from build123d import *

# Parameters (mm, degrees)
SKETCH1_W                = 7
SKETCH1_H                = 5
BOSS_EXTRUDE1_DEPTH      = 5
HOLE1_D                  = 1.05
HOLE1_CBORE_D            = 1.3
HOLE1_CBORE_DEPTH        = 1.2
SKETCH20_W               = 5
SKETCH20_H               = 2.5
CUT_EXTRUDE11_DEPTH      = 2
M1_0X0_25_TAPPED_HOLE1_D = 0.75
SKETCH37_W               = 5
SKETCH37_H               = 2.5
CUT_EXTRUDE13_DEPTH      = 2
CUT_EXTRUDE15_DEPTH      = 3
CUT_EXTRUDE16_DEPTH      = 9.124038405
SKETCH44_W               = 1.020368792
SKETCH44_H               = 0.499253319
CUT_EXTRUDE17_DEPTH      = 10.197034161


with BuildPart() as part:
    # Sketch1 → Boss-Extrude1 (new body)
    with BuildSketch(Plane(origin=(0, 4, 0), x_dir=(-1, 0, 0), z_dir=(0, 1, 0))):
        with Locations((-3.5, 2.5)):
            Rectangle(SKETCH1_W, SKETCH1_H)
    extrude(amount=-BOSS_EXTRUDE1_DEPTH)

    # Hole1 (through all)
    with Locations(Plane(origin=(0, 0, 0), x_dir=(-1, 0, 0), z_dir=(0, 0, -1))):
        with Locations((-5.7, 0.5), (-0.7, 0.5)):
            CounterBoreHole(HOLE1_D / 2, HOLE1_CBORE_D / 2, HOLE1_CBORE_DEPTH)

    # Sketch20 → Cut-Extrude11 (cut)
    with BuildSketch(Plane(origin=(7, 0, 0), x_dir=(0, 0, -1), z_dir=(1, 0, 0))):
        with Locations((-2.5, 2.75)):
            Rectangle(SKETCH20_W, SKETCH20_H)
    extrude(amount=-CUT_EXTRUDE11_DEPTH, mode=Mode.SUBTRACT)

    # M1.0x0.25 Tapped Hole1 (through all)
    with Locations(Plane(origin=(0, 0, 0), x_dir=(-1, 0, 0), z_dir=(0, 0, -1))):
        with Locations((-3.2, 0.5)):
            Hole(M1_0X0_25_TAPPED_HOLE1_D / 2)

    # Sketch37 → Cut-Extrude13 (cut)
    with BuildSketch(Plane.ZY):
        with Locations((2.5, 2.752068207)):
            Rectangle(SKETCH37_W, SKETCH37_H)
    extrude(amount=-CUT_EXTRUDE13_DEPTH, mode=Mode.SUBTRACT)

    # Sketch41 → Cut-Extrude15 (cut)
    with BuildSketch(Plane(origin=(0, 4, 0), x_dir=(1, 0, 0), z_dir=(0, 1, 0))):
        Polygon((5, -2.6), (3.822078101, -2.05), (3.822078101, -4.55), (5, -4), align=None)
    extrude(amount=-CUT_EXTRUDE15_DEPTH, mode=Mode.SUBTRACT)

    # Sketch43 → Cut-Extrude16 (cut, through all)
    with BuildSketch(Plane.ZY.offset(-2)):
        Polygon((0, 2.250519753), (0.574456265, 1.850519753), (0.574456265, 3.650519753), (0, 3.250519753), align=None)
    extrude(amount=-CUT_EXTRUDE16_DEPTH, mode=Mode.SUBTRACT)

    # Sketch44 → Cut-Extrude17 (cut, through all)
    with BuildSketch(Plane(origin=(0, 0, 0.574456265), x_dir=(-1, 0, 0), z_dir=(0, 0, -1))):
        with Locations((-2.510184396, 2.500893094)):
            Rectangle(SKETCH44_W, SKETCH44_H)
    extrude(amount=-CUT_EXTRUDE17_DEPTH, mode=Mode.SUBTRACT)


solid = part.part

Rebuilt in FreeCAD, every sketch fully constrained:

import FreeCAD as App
import Part
import Sketcher
Q = App.Units.Quantity


def add_polygon(sketch, points):
    """Adds a closed chain of lines whose ends are joined by coincident constraints."""
    first, n = sketch.GeometryCount, len(points)
    for a, b in zip(points, points[1:] + points[:1]):
        sketch.addGeometry(Part.LineSegment(App.Vector(*a, 0), App.Vector(*b, 0)), False)
    for i in range(n):
        sketch.addConstraint(Sketcher.Constraint("Coincident", first + i, 2, first + (i + 1) % n, 1))

doc = App.newDocument("Part")
body = doc.addObject("PartDesign::Body", "Body")

# Sketch on XZ plane
sketch1 = body.newObject("Sketcher::SketchObject", "Sketch")
sketch1.AttachmentSupport = (doc.getObject("XZ_Plane"), [""])
sketch1.MapMode = "FlatFace"
sketch1.AttachmentOffset = App.Placement(App.Vector(0, 0, -4), App.Rotation())
add_polygon(sketch1, [(7, 5), (7, 0), (0, 0), (0, 5)])  # lines 0-3
sketch1.addConstraint([
    Sketcher.Constraint("Vertical", 0),
    Sketcher.Constraint("Horizontal", 1),
    Sketcher.Constraint("Vertical", 2),
    Sketcher.Constraint("Horizontal", 3),
    Sketcher.Constraint("Coincident", 1, 2, -1, 1),
    Sketcher.Constraint("DistanceX", 1, 2, 1, 1, Q("7 mm")),
    Sketcher.Constraint("DistanceY", 0, 2, 0, 1, Q("5 mm")),
])
pad1 = body.newObject("PartDesign::Pad", "Pad")
pad1.Profile = sketch1
pad1.Length = 5

# Sketch on XY plane
sketch2 = body.newObject("Sketcher::SketchObject", "Sketch001")
sketch2.AttachmentSupport = (doc.getObject("XY_Plane"), [""])
sketch2.MapMode = "FlatFace"
sketch2.addGeometry([
    Part.Circle(App.Vector(5.7, 0.5, 0), App.Vector(0, 0, 1), 0.5),
    Part.Circle(App.Vector(0.7, 0.5, 0), App.Vector(0, 0, 1), 0.5),
], False)
sketch2.addConstraint([
    Sketcher.Constraint("Equal", 0, 1),
    Sketcher.Constraint("Horizontal", 0, 3, 1, 3),
    Sketcher.Constraint("Diameter", 0, Q("1.05 mm")),
    Sketcher.Constraint("DistanceX", 1, 3, 0, 3, Q("5 mm")),
    Sketcher.Constraint("DistanceX", -1, 1, 0, 3, Q("5.7 mm")),
    Sketcher.Constraint("DistanceY", -1, 1, 0, 3, Q("0.5 mm")),
])
doc.recompute()
hole = body.newObject("PartDesign::Hole", "Hole")
hole.Profile = sketch2
hole.ThreadType = "None"
hole.Diameter = 1.05
hole.DepthType = "ThroughAll"
hole.HoleCutType = "Counterbore"
hole.HoleCutDiameter = 1.3
hole.HoleCutDepth = 1.2
hole.Reversed = True

# Sketch on YZ plane
sketch3 = body.newObject("Sketcher::SketchObject", "Sketch002")
sketch3.AttachmentSupport = (doc.getObject("YZ_Plane"), [""])
sketch3.MapMode = "FlatFace"
sketch3.AttachmentOffset = App.Placement(App.Vector(0, 0, 7), App.Rotation())
add_polygon(sketch3, [(4, 5), (1.5, 5), (1.5, 0), (4, 0)])  # lines 0-3
sketch3.addConstraint([
    Sketcher.Constraint("Horizontal", 0),
    Sketcher.Constraint("Vertical", 1),
    Sketcher.Constraint("Horizontal", 2),
    Sketcher.Constraint("Vertical", 3),
    Sketcher.Constraint("PointOnObject", 1, 2, -1),
    Sketcher.Constraint("DistanceY", 1, 2, 1, 1, Q("5 mm")),
    Sketcher.Constraint("DistanceX", 0, 2, 0, 1, Q("2.5 mm")),
    Sketcher.Constraint("DistanceX", -1, 1, 2, 2, Q("4 mm")),
])
pocket1 = body.newObject("PartDesign::Pocket", "Pocket")
pocket1.Profile = sketch3
pocket1.Length = 2

# Sketch on XY plane
sketch4 = body.newObject("Sketcher::SketchObject", "Sketch003")
sketch4.AttachmentSupport = (doc.getObject("XY_Plane"), [""])
sketch4.MapMode = "FlatFace"
sketch4.addGeometry(Part.Circle(App.Vector(3.2, 0.5, 0), App.Vector(0, 0, 1), 0.38), False)
sketch4.addConstraint([
    Sketcher.Constraint("Diameter", 0, Q("0.75 mm")),
    Sketcher.Constraint("DistanceX", -1, 1, 0, 3, Q("3.2 mm")),
    Sketcher.Constraint("DistanceY", -1, 1, 0, 3, Q("0.5 mm")),
])
doc.recompute()
hole2 = body.newObject("PartDesign::Hole", "Hole001")
hole2.Profile = sketch4
hole2.ThreadType = "None"
hole2.Diameter = 0.75
hole2.DepthType = "ThroughAll"
hole2.Reversed = True

# Sketch on YZ plane
sketch5 = body.newObject("Sketcher::SketchObject", "Sketch004")
sketch5.AttachmentSupport = (doc.getObject("YZ_Plane"), [""])
sketch5.MapMode = "FlatFace"
add_polygon(sketch5, [(4, 0), (1.5, 0), (1.5, 5), (4, 5)])  # lines 0-3
sketch5.addConstraint([
    Sketcher.Constraint("Horizontal", 0),
    Sketcher.Constraint("Vertical", 1),
    Sketcher.Constraint("Horizontal", 2),
    Sketcher.Constraint("Vertical", 3),
    Sketcher.Constraint("PointOnObject", 0, 2, -1),
    Sketcher.Constraint("DistanceY", 1, 1, 1, 2, Q("5 mm")),
    Sketcher.Constraint("DistanceX", 0, 2, 0, 1, Q("2.5 mm")),
    Sketcher.Constraint("DistanceX", -1, 1, 0, 2, Q("1.502068 mm")),
])
pocket2 = body.newObject("PartDesign::Pocket", "Pocket001")
pocket2.Profile = sketch5
pocket2.Length = 2
pocket2.Reversed = True

# Sketch on XZ plane
sketch6 = body.newObject("Sketcher::SketchObject", "Sketch005")
sketch6.AttachmentSupport = (doc.getObject("XZ_Plane"), [""])
sketch6.MapMode = "FlatFace"
sketch6.AttachmentOffset = App.Placement(App.Vector(0, 0, -4), App.Rotation())
add_polygon(sketch6, [(5, 2.6), (3.8, 2), (3.8, 4.5), (5, 4)])  # lines 0-3
sketch6.addConstraint([
    Sketcher.Constraint("Vertical", 1),
    Sketcher.Constraint("Vertical", 3),
    Sketcher.Constraint("Equal", 0, 2),
    Sketcher.Constraint("DistanceY", 1, 1, 1, 2, Q("2.5 mm")),
    Sketcher.Constraint("DistanceY", 3, 2, 3, 1, Q("1.4 mm")),
    Sketcher.Constraint("DistanceX", -1, 1, 2, 2, Q("5 mm")),
    Sketcher.Constraint("DistanceY", -1, 1, 2, 2, Q("4 mm")),
    Sketcher.Constraint("Distance", 0, Q("1.3 mm")),
])
pocket3 = body.newObject("PartDesign::Pocket", "Pocket002")
pocket3.Profile = sketch6
pocket3.Length = 3
pocket3.Reversed = True

# Sketch on YZ plane
sketch7 = body.newObject("Sketcher::SketchObject", "Sketch006")
sketch7.AttachmentSupport = (doc.getObject("YZ_Plane"), [""])
sketch7.MapMode = "FlatFace"
sketch7.AttachmentOffset = App.Placement(App.Vector(0, 0, 2), App.Rotation())
add_polygon(sketch7, [(2.3, 0), (1.9, 0.6), (3.7, 0.6), (3.3, 0)])  # lines 0-3
sketch7.addConstraint([
    Sketcher.Constraint("Horizontal", 1),
    Sketcher.Constraint("Horizontal", 3),
    Sketcher.Constraint("PointOnObject", 2, 2, -1),
    Sketcher.Constraint("Equal", 0, 2),
    Sketcher.Constraint("DistanceX", 3, 2, 3, 1, Q("1 mm")),
    Sketcher.Constraint("DistanceX", 1, 1, 1, 2, Q("1.8 mm")),
    Sketcher.Constraint("Distance", 0, Q("0.7 mm")),
    Sketcher.Constraint("DistanceX", -1, 1, 0, 2, Q("1.85052 mm")),
])
pocket4 = body.newObject("PartDesign::Pocket", "Pocket003")
pocket4.Profile = sketch7
pocket4.Type = "ThroughAll"
pocket4.Reversed = True

# Sketch on XY plane
sketch8 = body.newObject("Sketcher::SketchObject", "Sketch007")
sketch8.AttachmentSupport = (doc.getObject("XY_Plane"), [""])
sketch8.MapMode = "FlatFace"
sketch8.AttachmentOffset = App.Placement(App.Vector(0, 0, 0.574456), App.Rotation())
add_polygon(sketch8, [(3.02, 2.75), (3.02, 2.25), (2, 2.25), (2, 2.75)])  # lines 0-3
sketch8.addConstraint([
    Sketcher.Constraint("Vertical", 0),
    Sketcher.Constraint("Horizontal", 1),
    Sketcher.Constraint("Vertical", 2),
    Sketcher.Constraint("Horizontal", 3),
    Sketcher.Constraint("DistanceX", -1, 1, 1, 2, Q("2 mm")),
    Sketcher.Constraint("DistanceX", 1, 2, 1, 1, Q("1.020369 mm")),
    Sketcher.Constraint("DistanceY", 0, 2, 0, 1, Q("0.499253 mm")),
    Sketcher.Constraint("DistanceY", -1, 1, 2, 2, Q("2.75052 mm")),
])
pocket5 = body.newObject("PartDesign::Pocket", "Pocket004")
pocket5.Profile = sketch8
pocket5.Type = "ThroughAll"
pocket5.Reversed = True

doc.recompute()
